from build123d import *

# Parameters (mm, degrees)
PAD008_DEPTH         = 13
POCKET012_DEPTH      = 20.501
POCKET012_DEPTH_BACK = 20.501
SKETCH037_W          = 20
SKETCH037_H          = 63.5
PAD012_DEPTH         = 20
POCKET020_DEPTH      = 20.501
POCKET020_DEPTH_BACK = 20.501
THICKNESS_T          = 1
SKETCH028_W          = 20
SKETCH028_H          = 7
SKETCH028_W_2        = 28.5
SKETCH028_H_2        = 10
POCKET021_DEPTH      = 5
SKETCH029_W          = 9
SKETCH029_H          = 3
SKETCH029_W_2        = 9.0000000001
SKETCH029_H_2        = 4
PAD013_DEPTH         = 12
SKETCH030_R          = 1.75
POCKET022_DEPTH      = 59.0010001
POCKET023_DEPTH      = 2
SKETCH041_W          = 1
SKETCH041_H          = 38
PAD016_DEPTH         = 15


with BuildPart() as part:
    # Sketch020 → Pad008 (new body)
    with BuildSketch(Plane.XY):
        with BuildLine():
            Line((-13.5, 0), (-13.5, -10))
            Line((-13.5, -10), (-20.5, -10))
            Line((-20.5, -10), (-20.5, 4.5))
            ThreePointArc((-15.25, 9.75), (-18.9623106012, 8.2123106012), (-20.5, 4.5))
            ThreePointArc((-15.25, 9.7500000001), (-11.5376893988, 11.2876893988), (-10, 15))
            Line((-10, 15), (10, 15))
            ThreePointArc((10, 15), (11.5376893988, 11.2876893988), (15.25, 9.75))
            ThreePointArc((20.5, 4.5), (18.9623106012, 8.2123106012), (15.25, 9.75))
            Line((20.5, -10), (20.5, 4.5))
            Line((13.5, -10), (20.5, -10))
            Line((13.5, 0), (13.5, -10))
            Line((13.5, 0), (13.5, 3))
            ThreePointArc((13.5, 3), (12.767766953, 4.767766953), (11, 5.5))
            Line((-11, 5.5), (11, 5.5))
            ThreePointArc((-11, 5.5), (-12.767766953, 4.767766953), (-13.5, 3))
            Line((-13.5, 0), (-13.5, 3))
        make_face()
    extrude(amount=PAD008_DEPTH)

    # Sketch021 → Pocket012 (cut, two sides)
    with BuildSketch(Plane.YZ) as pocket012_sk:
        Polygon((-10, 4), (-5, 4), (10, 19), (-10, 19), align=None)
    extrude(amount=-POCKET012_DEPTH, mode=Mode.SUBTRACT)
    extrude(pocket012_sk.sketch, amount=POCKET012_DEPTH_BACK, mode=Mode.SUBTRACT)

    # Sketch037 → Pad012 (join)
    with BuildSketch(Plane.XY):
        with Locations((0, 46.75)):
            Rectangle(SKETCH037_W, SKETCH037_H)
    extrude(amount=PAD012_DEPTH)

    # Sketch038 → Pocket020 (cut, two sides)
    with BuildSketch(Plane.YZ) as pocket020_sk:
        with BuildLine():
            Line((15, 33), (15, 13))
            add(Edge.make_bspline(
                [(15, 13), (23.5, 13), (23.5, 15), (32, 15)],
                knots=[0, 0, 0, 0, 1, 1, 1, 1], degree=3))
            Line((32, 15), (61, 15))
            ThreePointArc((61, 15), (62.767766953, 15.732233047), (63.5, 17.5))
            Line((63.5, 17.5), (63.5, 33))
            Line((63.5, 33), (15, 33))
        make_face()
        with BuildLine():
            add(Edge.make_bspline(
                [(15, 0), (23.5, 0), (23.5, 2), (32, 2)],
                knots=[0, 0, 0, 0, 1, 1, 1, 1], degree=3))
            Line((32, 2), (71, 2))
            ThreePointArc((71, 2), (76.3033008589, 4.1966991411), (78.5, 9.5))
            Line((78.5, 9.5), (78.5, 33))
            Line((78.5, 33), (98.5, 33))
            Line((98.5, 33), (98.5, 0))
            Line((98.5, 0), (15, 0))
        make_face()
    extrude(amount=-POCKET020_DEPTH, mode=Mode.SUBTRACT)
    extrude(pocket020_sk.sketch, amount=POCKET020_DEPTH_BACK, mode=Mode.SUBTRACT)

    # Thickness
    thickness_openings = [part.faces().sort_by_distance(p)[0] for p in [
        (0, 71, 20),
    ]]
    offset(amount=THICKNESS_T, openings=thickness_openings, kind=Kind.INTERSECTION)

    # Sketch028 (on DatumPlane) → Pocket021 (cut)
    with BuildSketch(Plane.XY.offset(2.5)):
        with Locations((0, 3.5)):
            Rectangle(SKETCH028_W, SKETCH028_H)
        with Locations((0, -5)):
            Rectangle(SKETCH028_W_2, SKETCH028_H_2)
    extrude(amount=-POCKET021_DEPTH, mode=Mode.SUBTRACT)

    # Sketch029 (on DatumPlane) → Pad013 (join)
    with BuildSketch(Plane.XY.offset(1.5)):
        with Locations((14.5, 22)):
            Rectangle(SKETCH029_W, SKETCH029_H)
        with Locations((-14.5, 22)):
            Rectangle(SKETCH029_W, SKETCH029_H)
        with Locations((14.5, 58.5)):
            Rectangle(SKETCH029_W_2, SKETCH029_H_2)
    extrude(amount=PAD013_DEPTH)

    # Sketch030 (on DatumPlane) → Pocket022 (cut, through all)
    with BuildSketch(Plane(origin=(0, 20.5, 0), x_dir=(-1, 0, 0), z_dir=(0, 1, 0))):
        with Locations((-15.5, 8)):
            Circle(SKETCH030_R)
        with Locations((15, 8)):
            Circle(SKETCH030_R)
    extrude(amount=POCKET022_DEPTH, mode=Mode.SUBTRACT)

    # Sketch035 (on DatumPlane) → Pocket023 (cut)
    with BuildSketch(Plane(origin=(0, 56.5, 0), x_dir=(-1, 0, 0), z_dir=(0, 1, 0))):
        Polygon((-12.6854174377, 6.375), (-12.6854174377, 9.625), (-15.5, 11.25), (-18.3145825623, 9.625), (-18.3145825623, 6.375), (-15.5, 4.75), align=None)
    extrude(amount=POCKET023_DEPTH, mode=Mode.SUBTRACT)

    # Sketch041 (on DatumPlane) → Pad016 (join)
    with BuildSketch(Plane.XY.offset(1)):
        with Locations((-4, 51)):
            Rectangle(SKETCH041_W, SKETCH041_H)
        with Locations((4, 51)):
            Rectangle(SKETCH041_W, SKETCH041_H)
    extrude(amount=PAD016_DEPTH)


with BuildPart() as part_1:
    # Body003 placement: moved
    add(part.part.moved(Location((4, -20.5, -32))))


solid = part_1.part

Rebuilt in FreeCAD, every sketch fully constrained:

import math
import FreeCAD as App
import Part
import Sketcher
Q = App.Units.Quantity


def faces_at(feature, points):
    """Names of the faces that lie closest to the given points."""
    faces = feature.Shape.Faces
    near = lambda p: min(range(len(faces)), key=lambda i: faces[i].distToShape(Part.Vertex(*p))[0])
    return sorted({f"Face{near(p) + 1}" for p in points})

doc = App.newDocument("Part")
params = doc.addObject("Spreadsheet::Sheet", "Params")
for row, (alias, value) in enumerate([
    ("sketch1_radius", "2.5 mm"),
    ("sketch1_width", "22 mm"),
    ("sketch1_width2", "7 mm"),
    ("sketch1_width3", "20 mm"),
    ("sketch1_height", "13 mm"),
    ("pad1_length", "13 mm"),
    ("sketch2_width", "5 mm"),
    ("sketch2_width2", "20 mm"),
    ("sketch2_height", "15 mm"),
    ("sketch3_width", "20 mm"),
    ("sketch3_height", "63.5 mm"),
    ("pad2_length", "20 mm"),
    ("sketch4_radius", "2.5 mm"),
    ("sketch4_radius2", "7.5 mm"),
    ("sketch4_width", "29 mm"),
    ("sketch4_width2", "20 mm"),
    ("sketch4_width3", "39 mm"),
    ("thickness_wall", "1 mm"),
    ("sketch5_width", "20 mm"),
    ("sketch5_height", "7 mm"),
    ("sketch5_height2", "10 mm"),
    ("sketch5_width2", "28.5 mm"),
    ("pocket3_length", "5 mm"),
    ("sketch6_width", "9 mm"),
    ("sketch6_height", "3 mm"),
    ("sketch6_height2", "4 mm"),
    ("pad3_length", "12 mm"),
    ("sketch7_diameter", "3.5 mm"),
    ("sketch8_height", "3.25 mm"),
    ("pocket5_length", "2 mm"),
    ("sketch9_width", "1 mm"),
    ("sketch9_height", "38 mm"),
    ("pad4_length", "15 mm"),
], start=1):
    params.set(f"A{row}", alias)
    params.set(f"B{row}", "=" + value)
    params.setAlias(f"B{row}", alias)

body = doc.addObject("PartDesign::Body", "Body")

# Sketch on XY plane
sketch1 = body.newObject("Sketcher::SketchObject", "Sketch")
sketch1.AttachmentSupport = (doc.getObject("XY_Plane"), [""])
sketch1.MapMode = "FlatFace"
sketch1.addGeometry([
    Part.LineSegment(App.Vector(-13.5, -10, 0), App.Vector(-13.5, 3, 0)),  # 0
    Part.ArcOfCircle(Part.Circle(App.Vector(-11, 3, 0), App.Vector(0, 0, 1), 2.5), math.radians(90), math.radians(180)),  # 1
    Part.LineSegment(App.Vector(-11, 5.5, 0), App.Vector(11, 5.5, 0)),  # 2
    Part.ArcOfCircle(Part.Circle(App.Vector(11, 3, 0), App.Vector(0, 0, 1), 2.5), math.radians(0), math.radians(90)),  # 3
    Part.LineSegment(App.Vector(13.5, 3, 0), App.Vector(13.5, -10, 0)),  # 4
    Part.LineSegment(App.Vector(13.5, -10, 0), App.Vector(20.5, -10, 0)),  # 5
    Part.LineSegment(App.Vector(20.5, -10, 0), App.Vector(20.5, 4.5, 0)),  # 6
    Part.ArcOfCircle(Part.Circle(App.Vector(15.2, 4.5, 0), App.Vector(0, 0, 1), 5.2), math.radians(0), math.radians(90)),  # 7
    Part.ArcOfCircle(Part.Circle(App.Vector(15.2, 15, 0), App.Vector(0, 0, 1), 5.2), math.radians(180), math.radians(270)),  # 8
    Part.LineSegment(App.Vector(10, 15, 0), App.Vector(-10, 15, 0)),  # 9
    Part.ArcOfCircle(Part.Circle(App.Vector(-15.2, 15, 0), App.Vector(0, 0, 1), 5.2), math.radians(-90), math.radians(0)),  # 10
    Part.ArcOfCircle(Part.Circle(App.Vector(-15.2, 4.5, 0), App.Vector(0, 0, 1), 5.2), math.radians(90), math.radians(180)),  # 11
    Part.LineSegment(App.Vector(-20.5, 4.5, 0), App.Vector(-20.5, -10, 0)),  # 12
    Part.LineSegment(App.Vector(-20.5, -10, 0), App.Vector(-13.5, -10, 0)),  # 13
], False)
sketch1.addConstraint([
    Sketcher.Constraint("Tangent", 0, 2, 1, 2),
    Sketcher.Constraint("Tangent", 1, 1, 2, 1),
    Sketcher.Constraint("Tangent", 2, 2, 3, 2),
    Sketcher.Constraint("Tangent", 3, 1, 4, 1),
    Sketcher.Constraint("Coincident", 4, 2, 5, 1),
    Sketcher.Constraint("Coincident", 5, 2, 6, 1),
    Sketcher.Constraint("Tangent", 6, 2, 7, 1),
    Sketcher.Constraint("Tangent", 7, 2, 8, 2),
    Sketcher.Constraint("Coincident", 8, 1, 9, 1),
    Sketcher.Constraint("Coincident", 9, 2, 10, 2),
    Sketcher.Constraint("Tangent", 10, 1, 11, 1),
    Sketcher.Constraint("Tangent", 11, 2, 12, 1),
    Sketcher.Constraint("Coincident", 12, 2, 13, 1),
    Sketcher.Constraint("Coincident", 13, 2, 0, 1),
    Sketcher.Constraint("Vertical", 0),
    Sketcher.Constraint("Horizontal", 2),
    Sketcher.Constraint("Vertical", 4),
    Sketcher.Constraint("Horizontal", 5),
    Sketcher.Constraint("Vertical", 6),
    Sketcher.Constraint("Horizontal", 9),
    Sketcher.Constraint("Vertical", 12),
    Sketcher.Constraint("Horizontal", 13),
    Sketcher.Constraint("Equal", 1, 3),
    Sketcher.Constraint("Equal", 7, 8),
    Sketcher.Constraint("Equal", 8, 10),
    Sketcher.Constraint("Equal", 10, 11),
    Sketcher.Constraint("Symmetric", 8, 3, 10, 3, -2),
    Sketcher.Constraint("Symmetric", 5, 2, 12, 2, -2),
    Sketcher.Constraint("Horizontal", 10, 3, 8, 1),
    Sketcher.Constraint("Vertical", 7, 3, 8, 3),
    Sketcher.Constraint("Equal", 5, 13),
    Sketcher.Constraint("Radius", 1, 2.5),
    Sketcher.Constraint("DistanceX", 2, 1, 2, 2, 22.0),
    Sketcher.Constraint("DistanceX", 5, 1, 5, 2, 7.0),
    Sketcher.Constraint("DistanceX", 9, 2, 9, 1, 20.0),
    Sketcher.Constraint("DistanceY", 0, 1, 0, 2, 13.0),
    Sketcher.Constraint("DistanceY", 6, 1, 6, 2, 14.5),
    Sketcher.Constraint("DistanceY", -1, 1, 1, 3, 3.0),
])
sketch1.setExpression("Constraints[31]", "Params.sketch1_radius")
sketch1.setExpression("Constraints[32]", "Params.sketch1_width")
sketch1.setExpression("Constraints[33]", "Params.sketch1_width2")
sketch1.setExpression("Constraints[34]", "Params.sketch1_width3")
sketch1.setExpression("Constraints[35]", "Params.sketch1_height")
pad1 = body.newObject("PartDesign::Pad", "Pad")
pad1.Profile = sketch1
pad1.setExpression("Length", "Params.pad1_length")

# Sketch on YZ plane
sketch2 = body.newObject("Sketcher::SketchObject", "Sketch001")
sketch2.AttachmentSupport = (doc.getObject("YZ_Plane"), [""])
sketch2.MapMode = "FlatFace"
sketch2.addGeometry([
    Part.LineSegment(App.Vector(-10, 4, 0), App.Vector(-5, 4, 0)),
    Part.LineSegment(App.Vector(-5, 4, 0), App.Vector(10, 19, 0)),
    Part.LineSegment(App.Vector(10, 19, 0), App.Vector(-10, 19, 0)),
    Part.LineSegment(App.Vector(-10, 19, 0), App.Vector(-10, 4, 0)),
], False)
sketch2.addConstraint([
    Sketcher.Constraint("Coincident", 0, 2, 1, 1),
    Sketcher.Constraint("Coincident", 1, 2, 2, 1),
    Sketcher.Constraint("Coincident", 2, 2, 3, 1),
    Sketcher.Constraint("Coincident", 3, 2, 0, 1),
    Sketcher.Constraint("Horizontal", 0),
    Sketcher.Constraint("Horizontal", 2),
    Sketcher.Constraint("Vertical", 3),
    Sketcher.Constraint("DistanceX", 0, 1, 0, 2, 5.0),
    Sketcher.Constraint("DistanceX", 2, 2, 2, 1, 20.0),
    Sketcher.Constraint("DistanceY", 3, 2, 3, 1, 15.0),
    Sketcher.Constraint("DistanceX", 0, 2, -1, 1, 5.0),
    Sketcher.Constraint("DistanceY", -1, 1, 0, 2, 4.0),
])
sketch2.setExpression("Constraints[7]", "Params.sketch2_width")
sketch2.setExpression("Constraints[8]", "Params.sketch2_width2")
sketch2.setExpression("Constraints[9]", "Params.sketch2_height")
pocket1 = body.newObject("PartDesign::Pocket", "Pocket")
pocket1.Profile = sketch2
pocket1.Type = "ThroughAll"
pocket1.Midplane = True

# Sketch on XY plane
sketch3 = body.newObject("Sketcher::SketchObject", "Sketch002")
sketch3.AttachmentSupport = (doc.getObject("XY_Plane"), [""])
sketch3.MapMode = "FlatFace"
sketch3.addGeometry([
    Part.LineSegment(App.Vector(-10, 78, 0), App.Vector(-10, 15, 0)),
    Part.LineSegment(App.Vector(-10, 15, 0), App.Vector(10, 15, 0)),
    Part.LineSegment(App.Vector(10, 15, 0), App.Vector(10, 78, 0)),
    Part.LineSegment(App.Vector(10, 78, 0), App.Vector(-10, 78, 0)),
], False)
sketch3.addConstraint([
    Sketcher.Constraint("Coincident", 0, 2, 1, 1),
    Sketcher.Constraint("Coincident", 1, 2, 2, 1),
    Sketcher.Constraint("Coincident", 2, 2, 3, 1),
    Sketcher.Constraint("Coincident", 3, 2, 0, 1),
    Sketcher.Constraint("Vertical", 0),
    Sketcher.Constraint("Horizontal", 1),
    Sketcher.Constraint("Vertical", 2),
    Sketcher.Constraint("Horizontal", 3),
    Sketcher.Constraint("DistanceX", 1, 1, 1, 2, 20.0),
    Sketcher.Constraint("DistanceY", 0, 2, 0, 1, 63.5),
    Sketcher.Constraint("DistanceX", 0, 2, -1, 1, 10.0),
    Sketcher.Constraint("DistanceY", -1, 1, 0, 2, 15.0),
])
sketch3.setExpression("Constraints[8]", "Params.sketch3_width")
sketch3.setExpression("Constraints[9]", "Params.sketch3_height")
pad2 = body.newObject("PartDesign::Pad", "Pad001")
pad2.Profile = sketch3
pad2.setExpression("Length", "Params.pad2_length")

# Sketch on YZ plane
sketch4 = body.newObject("Sketcher::SketchObject", "Sketch003")
sketch4.AttachmentSupport = (doc.getObject("YZ_Plane"), [""])
sketch4.MapMode = "FlatFace"
sketch4.addGeometry([
    Part.LineSegment(App.Vector(15, 33, 0), App.Vector(15, 13, 0)),  # 0
    Part.BSplineCurve([App.Vector(15, 13, 0), App.Vector(23.5, 13, 0), App.Vector(23.5, 15, 0), App.Vector(32, 15, 0)], [4, 4], [0, 1], False, 3, [1, 1, 1, 1], False),  # 1
    Part.LineSegment(App.Vector(32, 15, 0), App.Vector(61, 15, 0)),  # 2
    Part.ArcOfCircle(Part.Circle(App.Vector(61, 17.5, 0), App.Vector(0, 0, 1), 2.5), math.radians(-90), math.radians(0)),  # 3
    Part.LineSegment(App.Vector(63.5, 17.5, 0), App.Vector(63.5, 33, 0)),  # 4
    Part.LineSegment(App.Vector(63.5, 33, 0), App.Vector(15, 33, 0)),  # 5
    Part.BSplineCurve([App.Vector(15, 0, 0), App.Vector(23.5, 0, 0), App.Vector(23.5, 2, 0), App.Vector(32, 2, 0)], [4, 4], [0, 1], False, 3, [1, 1, 1, 1], False),  # 6
    Part.LineSegment(App.Vector(15, 0, 0), App.Vector(98.5, 0, 0)),  # 7
    Part.LineSegment(App.Vector(98.5, 0, 0), App.Vector(98.5, 33, 0)),  # 8
    Part.LineSegment(App.Vector(98.5, 33, 0), App.Vector(78.5, 33, 0)),  # 9
    Part.LineSegment(App.Vector(78.5, 33, 0), App.Vector(78.5, 9.5, 0)),  # 10
    Part.ArcOfCircle(Part.Circle(App.Vector(71, 9.5, 0), App.Vector(0, 0, 1), 7.5), math.radians(-90), math.radians(0)),  # 11
    Part.LineSegment(App.Vector(71, 2, 0), App.Vector(32, 2, 0)),  # 12
], False)
sketch4.addConstraint([
    Sketcher.Constraint("Block", 1),
    Sketcher.Constraint("Block", 6),
    Sketcher.Constraint("Coincident", 0, 2, 1, 1),
    Sketcher.Constraint("Coincident", 1, 2, 2, 1),
    Sketcher.Constraint("Tangent", 2, 2, 3, 1),
    Sketcher.Constraint("Tangent", 3, 2, 4, 1),
    Sketcher.Constraint("Coincident", 4, 2, 5, 1),
    Sketcher.Constraint("Coincident", 5, 2, 0, 1),
    Sketcher.Constraint("Coincident", 6, 1, 7, 1),
    Sketcher.Constraint("Coincident", 7, 2, 8, 1),
    Sketcher.Constraint("Coincident", 8, 2, 9, 1),
    Sketcher.Constraint("Coincident", 9, 2, 10, 1),
    Sketcher.Constraint("Tangent", 10, 2, 11, 2),
    Sketcher.Constraint("Tangent", 11, 1, 12, 1),
    Sketcher.Constraint("Coincident", 12, 2, 6, 2),
    Sketcher.Constraint("Vertical", 0),
    Sketcher.Constraint("Horizontal", 2),
    Sketcher.Constraint("Vertical", 4),
    Sketcher.Constraint("Horizontal", 5),
    Sketcher.Constraint("Horizontal", 7),
    Sketcher.Constraint("Vertical", 8),
    Sketcher.Constraint("Horizontal", 9),
    Sketcher.Constraint("Vertical", 10),
    Sketcher.Constraint("Horizontal", 12),
    Sketcher.Constraint("Horizontal", 5, 2, 8, 2),
    Sketcher.Constraint("Equal", 9, 0),
    Sketcher.Constraint("Radius", 3, 2.5),
    Sketcher.Constraint("Radius", 11, 7.5),
    Sketcher.Constraint("DistanceX", 2, 1, 2, 2, 29.0),
    Sketcher.Constraint("DistanceX", 9, 2, 9, 1, 20.0),
    Sketcher.Constraint("DistanceX", 12, 2, 12, 1, 39.0),
])
sketch4.setExpression("Constraints[26]", "Params.sketch4_radius")
sketch4.setExpression("Constraints[27]", "Params.sketch4_radius2")
sketch4.setExpression("Constraints[28]", "Params.sketch4_width")
sketch4.setExpression("Constraints[29]", "Params.sketch4_width2")
sketch4.setExpression("Constraints[30]", "Params.sketch4_width3")
pocket2 = body.newObject("PartDesign::Pocket", "Pocket001")
pocket2.Profile = sketch4
pocket2.Type = "ThroughAll"
pocket2.Midplane = True
doc.recompute()

thickness = body.newObject("PartDesign::Thickness", "Thickness")
thickness.Base = (pocket2, faces_at(pocket2, [(0, 71, 20)]))
thickness.setExpression("Value", "Params.thickness_wall")
thickness.Reversed = False
thickness.Join = "Intersection"

# Sketch on XY plane
sketch5 = body.newObject("Sketcher::SketchObject", "Sketch004")
sketch5.AttachmentSupport = (doc.getObject("XY_Plane"), [""])
sketch5.MapMode = "FlatFace"
sketch5.AttachmentOffset = App.Placement(App.Vector(0, 0, 2.5), App.Rotation())
sketch5.addGeometry([
    Part.LineSegment(App.Vector(-10, 7, 0), App.Vector(-10, 0, 0)),  # 0
    Part.LineSegment(App.Vector(-10, 0, 0), App.Vector(-14.2, 0, 0)),  # 1
    Part.LineSegment(App.Vector(-14.2, 0, 0), App.Vector(-14.2, -10, 0)),  # 2
    Part.LineSegment(App.Vector(-14.2, -10, 0), App.Vector(14.2, -10, 0)),  # 3
    Part.LineSegment(App.Vector(14.2, -10, 0), App.Vector(14.2, 0, 0)),  # 4
    Part.LineSegment(App.Vector(14.2, 0, 0), App.Vector(10, 0, 0)),  # 5
    Part.LineSegment(App.Vector(10, 0, 0), App.Vector(10, 7, 0)),  # 6
    Part.LineSegment(App.Vector(10, 7, 0), App.Vector(-10, 7, 0)),  # 7
], False)
sketch5.addConstraint([
    Sketcher.Constraint("Coincident", 0, 2, 1, 1),
    Sketcher.Constraint("Coincident", 1, 2, 2, 1),
    Sketcher.Constraint("Coincident", 2, 2, 3, 1),
    Sketcher.Constraint("Coincident", 3, 2, 4, 1),
    Sketcher.Constraint("Coincident", 4, 2, 5, 1),
    Sketcher.Constraint("Coincident", 5, 2, 6, 1),
    Sketcher.Constraint("Coincident", 6, 2, 7, 1),
    Sketcher.Constraint("Coincident", 7, 2, 0, 1),
    Sketcher.Constraint("Vertical", 0),
    Sketcher.Constraint("Horizontal", 1),
    Sketcher.Constraint("Vertical", 2),
    Sketcher.Constraint("Horizontal", 3),
    Sketcher.Constraint("Vertical", 4),
    Sketcher.Constraint("Horizontal", 5),
    Sketcher.Constraint("Vertical", 6),
    Sketcher.Constraint("Horizontal", 7),
    Sketcher.Constraint("Symmetric", 1, 2, 4, 2, -1, 1),
    Sketcher.Constraint("Symmetric", 0, 2, 5, 2, -2),
    Sketcher.Constraint("DistanceX", 7, 2, 7, 1, 20.0),
    Sketcher.Constraint("DistanceY", 0, 2, 0, 1, 7.0),
    Sketcher.Constraint("DistanceY", 2, 2, 2, 1, 10.0),
    Sketcher.Constraint("DistanceX", 3, 1, 3, 2, 28.5),
])
sketch5.setExpression("Constraints[18]", "Params.sketch5_width")
sketch5.setExpression("Constraints[19]", "Params.sketch5_height")
sketch5.setExpression("Constraints[20]", "Params.sketch5_height2")
sketch5.setExpression("Constraints[21]", "Params.sketch5_width2")
pocket3 = body.newObject("PartDesign::Pocket", "Pocket002")
pocket3.Profile = sketch5
pocket3.setExpression("Length", "Params.pocket3_length")

# Sketch on XY plane
sketch6 = body.newObject("Sketcher::SketchObject", "Sketch005")
sketch6.AttachmentSupport = (doc.getObject("XY_Plane"), [""])
sketch6.MapMode = "FlatFace"
sketch6.AttachmentOffset = App.Placement(App.Vector(0, 0, 1.5), App.Rotation())
sketch6.addGeometry([
    Part.LineSegment(App.Vector(10, 23.5, 0), App.Vector(10, 20.5, 0)),  # 0
    Part.LineSegment(App.Vector(10, 20.5, 0), App.Vector(19, 20.5, 0)),  # 1
    Part.LineSegment(App.Vector(19, 20.5, 0), App.Vector(19, 23.5, 0)),  # 2
    Part.LineSegment(App.Vector(19, 23.5, 0), App.Vector(10, 23.5, 0)),  # 3
    Part.LineSegment(App.Vector(-19, 23.5, 0), App.Vector(-19, 20.5, 0)),  # 4
    Part.LineSegment(App.Vector(-19, 20.5, 0), App.Vector(-10, 20.5, 0)),  # 5
    Part.LineSegment(App.Vector(-10, 20.5, 0), App.Vector(-10, 23.5, 0)),  # 6
    Part.LineSegment(App.Vector(-10, 23.5, 0), App.Vector(-19, 23.5, 0)),  # 7
    Part.LineSegment(App.Vector(10, 60.5, 0), App.Vector(10, 56.5, 0)),  # 8
    Part.LineSegment(App.Vector(10, 56.5, 0), App.Vector(19, 56.5, 0)),  # 9
    Part.LineSegment(App.Vector(19, 56.5, 0), App.Vector(19, 60.5, 0)),  # 10
    Part.LineSegment(App.Vector(19, 60.5, 0), App.Vector(10, 60.5, 0)),  # 11
], False)
sketch6.addConstraint([
    Sketcher.Constraint("Coincident", 0, 2, 1, 1),
    Sketcher.Constraint("Coincident", 1, 2, 2, 1),
    Sketcher.Constraint("Coincident", 2, 2, 3, 1),
    Sketcher.Constraint("Coincident", 3, 2, 0, 1),
    Sketcher.Constraint("Coincident", 4, 2, 5, 1),
    Sketcher.Constraint("Coincident", 5, 2, 6, 1),
    Sketcher.Constraint("Coincident", 6, 2, 7, 1),
    Sketcher.Constraint("Coincident", 7, 2, 4, 1),
    Sketcher.Constraint("Coincident", 8, 2, 9, 1),
    Sketcher.Constraint("Coincident", 9, 2, 10, 1),
    Sketcher.Constraint("Coincident", 10, 2, 11, 1),
    Sketcher.Constraint("Coincident", 11, 2, 8, 1),
    Sketcher.Constraint("Vertical", 0),
    Sketcher.Constraint("Horizontal", 1),
    Sketcher.Constraint("Vertical", 2),
    Sketcher.Constraint("Horizontal", 3),
    Sketcher.Constraint("Vertical", 4),
    Sketcher.Constraint("Horizontal", 5),
    Sketcher.Constraint("Vertical", 6),
    Sketcher.Constraint("Horizontal", 7),
    Sketcher.Constraint("Vertical", 8),
    Sketcher.Constraint("Horizontal", 9),
    Sketcher.Constraint("Vertical", 10),
    Sketcher.Constraint("Horizontal", 11),
    Sketcher.Constraint("Symmetric", 1, 2, 4, 2, -2),
    Sketcher.Constraint("Symmetric", 3, 2, 6, 2, -2),
    Sketcher.Constraint("Vertical", 3, 2, 8, 2),
    Sketcher.Constraint("Vertical", 2, 2, 9, 2),
    Sketcher.Constraint("DistanceX", 1, 1, 1, 2, 9.0),
    Sketcher.Constraint("DistanceY", 0, 2, 0, 1, 3.0),
    Sketcher.Constraint("DistanceY", 8, 2, 8, 1, 4.0),
    Sketcher.Constraint("DistanceX", -1, 1, 0, 2, 10.0),
    Sketcher.Constraint("DistanceY", 3, 2, 8, 2, 33.0),
    Sketcher.Constraint("DistanceY", -1, 1, 0, 2, 20.5),
])
sketch6.setExpression("Constraints[28]", "Params.sketch6_width")
sketch6.setExpression("Constraints[29]", "Params.sketch6_height")
sketch6.setExpression("Constraints[30]", "Params.sketch6_height2")
pad3 = body.newObject("PartDesign::Pad", "Pad002")
pad3.Profile = sketch6
pad3.setExpression("Length", "Params.pad3_length")

# Sketch on XZ plane
sketch7 = body.newObject("Sketcher::SketchObject", "Sketch006")
sketch7.AttachmentSupport = (doc.getObject("XZ_Plane"), [""])
sketch7.MapMode = "FlatFace"
sketch7.AttachmentOffset = App.Placement(App.Vector(0, 0, -20.5), App.Rotation())
sketch7.addGeometry([
    Part.Circle(App.Vector(15.5, 8, 0), App.Vector(0, 0, 1), 1.8),
    Part.Circle(App.Vector(-15, 8, 0), App.Vector(0, 0, 1), 1.8),
], False)
sketch7.addConstraint([
    Sketcher.Constraint("Equal", 0, 1),
    Sketcher.Constraint("Horizontal", 0, 3, 1, 3),
    Sketcher.Constraint("Diameter", 0, 3.5),
    Sketcher.Constraint("DistanceY", -1, 1, 0, 3, 8.0),
    Sketcher.Constraint("DistanceX", 1, 3, -1, 1, 15.0),
    Sketcher.Constraint("DistanceX", -1, 1, 0, 3, 15.5),
])
sketch7.setExpression("Constraints[2]", "Params.sketch7_diameter")
pocket4 = body.newObject("PartDesign::Pocket", "Pocket003")
pocket4.Profile = sketch7
pocket4.Type = "ThroughAll"

# Sketch on XZ plane
sketch8 = body.newObject("Sketcher::SketchObject", "Sketch007")
sketch8.AttachmentSupport = (doc.getObject("XZ_Plane"), [""])
sketch8.MapMode = "FlatFace"
sketch8.AttachmentOffset = App.Placement(App.Vector(0, 0, -56.5), App.Rotation())
sketch8.addGeometry([
    Part.LineSegment(App.Vector(12.7, 6.4, 0), App.Vector(12.7, 9.6, 0)),  # 0
    Part.LineSegment(App.Vector(12.7, 9.6, 0), App.Vector(15.5, 11.2, 0)),  # 1
    Part.LineSegment(App.Vector(15.5, 11.2, 0), App.Vector(18.3, 9.6, 0)),  # 2
    Part.LineSegment(App.Vector(18.3, 9.6, 0), App.Vector(18.3, 6.4, 0)),  # 3
    Part.LineSegment(App.Vector(18.3, 6.4, 0), App.Vector(15.5, 4.8, 0)),  # 4
    Part.LineSegment(App.Vector(15.5, 4.8, 0), App.Vector(12.7, 6.4, 0)),  # 5
], False)
sketch8.addConstraint([
    Sketcher.Constraint("Coincident", 0, 2, 1, 1),
    Sketcher.Constraint("Coincident", 1, 2, 2, 1),
    Sketcher.Constraint("Coincident", 2, 2, 3, 1),
    Sketcher.Constraint("Coincident", 3, 2, 4, 1),
    Sketcher.Constraint("Coincident", 4, 2, 5, 1),
    Sketcher.Constraint("Coincident", 5, 2, 0, 1),
    Sketcher.Constraint("Vertical", 0),
    Sketcher.Constraint("Vertical", 3),
    Sketcher.Constraint("Parallel", 1, 4),
    Sketcher.Constraint("Parallel", 2, 5),
    Sketcher.Constraint("Horizontal", 0, 2, 2, 2),
    Sketcher.Constraint("Horizontal", 3, 2, 5, 2),
    Sketcher.Constraint("Vertical", 1, 2, 4, 2),
    Sketcher.Constraint("Angle", 1, Q("30 deg")),
    Sketcher.Constraint("DistanceY", 0, 1, 0, 2, 3.25),
    Sketcher.Constraint("DistanceX", -1, 1, 1, 2, 15.5),
    Sketcher.Constraint("DistanceY", 4, 2, 1, 2, 6.5),
    Sketcher.Constraint("DistanceY", -1, 1, 1, 2, 11.25),
])
sketch8.setExpression("Constraints[14]", "Params.sketch8_height")
pocket5 = body.newObject("PartDesign::Pocket", "Pocket004")
pocket5.Profile = sketch8
pocket5.setExpression("Length", "Params.pocket5_length")

# Sketch on XY plane
sketch9 = body.newObject("Sketcher::SketchObject", "Sketch008")
sketch9.AttachmentSupport = (doc.getObject("XY_Plane"), [""])
sketch9.MapMode = "FlatFace"
sketch9.AttachmentOffset = App.Placement(App.Vector(0, 0, 1), App.Rotation())
sketch9.addGeometry([
    Part.LineSegment(App.Vector(-4.5, 70, 0), App.Vector(-4.5, 32, 0)),  # 0
    Part.LineSegment(App.Vector(-4.5, 32, 0), App.Vector(-3.5, 32, 0)),  # 1
    Part.LineSegment(App.Vector(-3.5, 32, 0), App.Vector(-3.5, 70, 0)),  # 2
    Part.LineSegment(App.Vector(-3.5, 70, 0), App.Vector(-4.5, 70, 0)),  # 3
    Part.LineSegment(App.Vector(3.5, 70, 0), App.Vector(3.5, 32, 0)),  # 4
    Part.LineSegment(App.Vector(3.5, 32, 0), App.Vector(4.5, 32, 0)),  # 5
    Part.LineSegment(App.Vector(4.5, 32, 0), App.Vector(4.5, 70, 0)),  # 6
    Part.LineSegment(App.Vector(4.5, 70, 0), App.Vector(3.5, 70, 0)),  # 7
], False)
sketch9.addConstraint([
    Sketcher.Constraint("Coincident", 0, 2, 1, 1),
    Sketcher.Constraint("Coincident", 1, 2, 2, 1),
    Sketcher.Constraint("Coincident", 2, 2, 3, 1),
    Sketcher.Constraint("Coincident", 3, 2, 0, 1),
    Sketcher.Constraint("Coincident", 4, 2, 5, 1),
    Sketcher.Constraint("Coincident", 5, 2, 6, 1),
    Sketcher.Constraint("Coincident", 6, 2, 7, 1),
    Sketcher.Constraint("Coincident", 7, 2, 4, 1),
    Sketcher.Constraint("Vertical", 0),
    Sketcher.Constraint("Horizontal", 1),
    Sketcher.Constraint("Vertical", 2),
    Sketcher.Constraint("Horizontal", 3),
    Sketcher.Constraint("Vertical", 4),
    Sketcher.Constraint("Horizontal", 5),
    Sketcher.Constraint("Vertical", 6),
    Sketcher.Constraint("Horizontal", 7),
    Sketcher.Constraint("Symmetric", 1, 2, 4, 2, -2),
    Sketcher.Constraint("Symmetric", 3, 2, 6, 2, -2),
    Sketcher.Constraint("DistanceX", 1, 1, 1, 2, 1.0),
    Sketcher.Constraint("DistanceY", 0, 2, 0, 1, 38.0),
    Sketcher.Constraint("DistanceY", -1, 1, 0, 2, 32.0),
    Sketcher.Constraint("DistanceX", 1, 2, 4, 2, 7.0),
])
sketch9.setExpression("Constraints[18]", "Params.sketch9_width")
sketch9.setExpression("Constraints[19]", "Params.sketch9_height")
pad4 = body.newObject("PartDesign::Pad", "Pad003")
pad4.Profile = sketch9
pad4.setExpression("Length", "Params.pad4_length")
body2 = doc.addObject("PartDesign::Body", "Body001")
doc.recompute()

body.Placement = App.Placement(App.Vector(4, -20.5, -32), App.Rotation(App.Vector(0, 0, 1), 0))
boolean = body2.newObject("PartDesign::Boolean", "Boolean")
boolean.Type = "Fuse"
boolean.addObjects([body])

doc.recompute()
